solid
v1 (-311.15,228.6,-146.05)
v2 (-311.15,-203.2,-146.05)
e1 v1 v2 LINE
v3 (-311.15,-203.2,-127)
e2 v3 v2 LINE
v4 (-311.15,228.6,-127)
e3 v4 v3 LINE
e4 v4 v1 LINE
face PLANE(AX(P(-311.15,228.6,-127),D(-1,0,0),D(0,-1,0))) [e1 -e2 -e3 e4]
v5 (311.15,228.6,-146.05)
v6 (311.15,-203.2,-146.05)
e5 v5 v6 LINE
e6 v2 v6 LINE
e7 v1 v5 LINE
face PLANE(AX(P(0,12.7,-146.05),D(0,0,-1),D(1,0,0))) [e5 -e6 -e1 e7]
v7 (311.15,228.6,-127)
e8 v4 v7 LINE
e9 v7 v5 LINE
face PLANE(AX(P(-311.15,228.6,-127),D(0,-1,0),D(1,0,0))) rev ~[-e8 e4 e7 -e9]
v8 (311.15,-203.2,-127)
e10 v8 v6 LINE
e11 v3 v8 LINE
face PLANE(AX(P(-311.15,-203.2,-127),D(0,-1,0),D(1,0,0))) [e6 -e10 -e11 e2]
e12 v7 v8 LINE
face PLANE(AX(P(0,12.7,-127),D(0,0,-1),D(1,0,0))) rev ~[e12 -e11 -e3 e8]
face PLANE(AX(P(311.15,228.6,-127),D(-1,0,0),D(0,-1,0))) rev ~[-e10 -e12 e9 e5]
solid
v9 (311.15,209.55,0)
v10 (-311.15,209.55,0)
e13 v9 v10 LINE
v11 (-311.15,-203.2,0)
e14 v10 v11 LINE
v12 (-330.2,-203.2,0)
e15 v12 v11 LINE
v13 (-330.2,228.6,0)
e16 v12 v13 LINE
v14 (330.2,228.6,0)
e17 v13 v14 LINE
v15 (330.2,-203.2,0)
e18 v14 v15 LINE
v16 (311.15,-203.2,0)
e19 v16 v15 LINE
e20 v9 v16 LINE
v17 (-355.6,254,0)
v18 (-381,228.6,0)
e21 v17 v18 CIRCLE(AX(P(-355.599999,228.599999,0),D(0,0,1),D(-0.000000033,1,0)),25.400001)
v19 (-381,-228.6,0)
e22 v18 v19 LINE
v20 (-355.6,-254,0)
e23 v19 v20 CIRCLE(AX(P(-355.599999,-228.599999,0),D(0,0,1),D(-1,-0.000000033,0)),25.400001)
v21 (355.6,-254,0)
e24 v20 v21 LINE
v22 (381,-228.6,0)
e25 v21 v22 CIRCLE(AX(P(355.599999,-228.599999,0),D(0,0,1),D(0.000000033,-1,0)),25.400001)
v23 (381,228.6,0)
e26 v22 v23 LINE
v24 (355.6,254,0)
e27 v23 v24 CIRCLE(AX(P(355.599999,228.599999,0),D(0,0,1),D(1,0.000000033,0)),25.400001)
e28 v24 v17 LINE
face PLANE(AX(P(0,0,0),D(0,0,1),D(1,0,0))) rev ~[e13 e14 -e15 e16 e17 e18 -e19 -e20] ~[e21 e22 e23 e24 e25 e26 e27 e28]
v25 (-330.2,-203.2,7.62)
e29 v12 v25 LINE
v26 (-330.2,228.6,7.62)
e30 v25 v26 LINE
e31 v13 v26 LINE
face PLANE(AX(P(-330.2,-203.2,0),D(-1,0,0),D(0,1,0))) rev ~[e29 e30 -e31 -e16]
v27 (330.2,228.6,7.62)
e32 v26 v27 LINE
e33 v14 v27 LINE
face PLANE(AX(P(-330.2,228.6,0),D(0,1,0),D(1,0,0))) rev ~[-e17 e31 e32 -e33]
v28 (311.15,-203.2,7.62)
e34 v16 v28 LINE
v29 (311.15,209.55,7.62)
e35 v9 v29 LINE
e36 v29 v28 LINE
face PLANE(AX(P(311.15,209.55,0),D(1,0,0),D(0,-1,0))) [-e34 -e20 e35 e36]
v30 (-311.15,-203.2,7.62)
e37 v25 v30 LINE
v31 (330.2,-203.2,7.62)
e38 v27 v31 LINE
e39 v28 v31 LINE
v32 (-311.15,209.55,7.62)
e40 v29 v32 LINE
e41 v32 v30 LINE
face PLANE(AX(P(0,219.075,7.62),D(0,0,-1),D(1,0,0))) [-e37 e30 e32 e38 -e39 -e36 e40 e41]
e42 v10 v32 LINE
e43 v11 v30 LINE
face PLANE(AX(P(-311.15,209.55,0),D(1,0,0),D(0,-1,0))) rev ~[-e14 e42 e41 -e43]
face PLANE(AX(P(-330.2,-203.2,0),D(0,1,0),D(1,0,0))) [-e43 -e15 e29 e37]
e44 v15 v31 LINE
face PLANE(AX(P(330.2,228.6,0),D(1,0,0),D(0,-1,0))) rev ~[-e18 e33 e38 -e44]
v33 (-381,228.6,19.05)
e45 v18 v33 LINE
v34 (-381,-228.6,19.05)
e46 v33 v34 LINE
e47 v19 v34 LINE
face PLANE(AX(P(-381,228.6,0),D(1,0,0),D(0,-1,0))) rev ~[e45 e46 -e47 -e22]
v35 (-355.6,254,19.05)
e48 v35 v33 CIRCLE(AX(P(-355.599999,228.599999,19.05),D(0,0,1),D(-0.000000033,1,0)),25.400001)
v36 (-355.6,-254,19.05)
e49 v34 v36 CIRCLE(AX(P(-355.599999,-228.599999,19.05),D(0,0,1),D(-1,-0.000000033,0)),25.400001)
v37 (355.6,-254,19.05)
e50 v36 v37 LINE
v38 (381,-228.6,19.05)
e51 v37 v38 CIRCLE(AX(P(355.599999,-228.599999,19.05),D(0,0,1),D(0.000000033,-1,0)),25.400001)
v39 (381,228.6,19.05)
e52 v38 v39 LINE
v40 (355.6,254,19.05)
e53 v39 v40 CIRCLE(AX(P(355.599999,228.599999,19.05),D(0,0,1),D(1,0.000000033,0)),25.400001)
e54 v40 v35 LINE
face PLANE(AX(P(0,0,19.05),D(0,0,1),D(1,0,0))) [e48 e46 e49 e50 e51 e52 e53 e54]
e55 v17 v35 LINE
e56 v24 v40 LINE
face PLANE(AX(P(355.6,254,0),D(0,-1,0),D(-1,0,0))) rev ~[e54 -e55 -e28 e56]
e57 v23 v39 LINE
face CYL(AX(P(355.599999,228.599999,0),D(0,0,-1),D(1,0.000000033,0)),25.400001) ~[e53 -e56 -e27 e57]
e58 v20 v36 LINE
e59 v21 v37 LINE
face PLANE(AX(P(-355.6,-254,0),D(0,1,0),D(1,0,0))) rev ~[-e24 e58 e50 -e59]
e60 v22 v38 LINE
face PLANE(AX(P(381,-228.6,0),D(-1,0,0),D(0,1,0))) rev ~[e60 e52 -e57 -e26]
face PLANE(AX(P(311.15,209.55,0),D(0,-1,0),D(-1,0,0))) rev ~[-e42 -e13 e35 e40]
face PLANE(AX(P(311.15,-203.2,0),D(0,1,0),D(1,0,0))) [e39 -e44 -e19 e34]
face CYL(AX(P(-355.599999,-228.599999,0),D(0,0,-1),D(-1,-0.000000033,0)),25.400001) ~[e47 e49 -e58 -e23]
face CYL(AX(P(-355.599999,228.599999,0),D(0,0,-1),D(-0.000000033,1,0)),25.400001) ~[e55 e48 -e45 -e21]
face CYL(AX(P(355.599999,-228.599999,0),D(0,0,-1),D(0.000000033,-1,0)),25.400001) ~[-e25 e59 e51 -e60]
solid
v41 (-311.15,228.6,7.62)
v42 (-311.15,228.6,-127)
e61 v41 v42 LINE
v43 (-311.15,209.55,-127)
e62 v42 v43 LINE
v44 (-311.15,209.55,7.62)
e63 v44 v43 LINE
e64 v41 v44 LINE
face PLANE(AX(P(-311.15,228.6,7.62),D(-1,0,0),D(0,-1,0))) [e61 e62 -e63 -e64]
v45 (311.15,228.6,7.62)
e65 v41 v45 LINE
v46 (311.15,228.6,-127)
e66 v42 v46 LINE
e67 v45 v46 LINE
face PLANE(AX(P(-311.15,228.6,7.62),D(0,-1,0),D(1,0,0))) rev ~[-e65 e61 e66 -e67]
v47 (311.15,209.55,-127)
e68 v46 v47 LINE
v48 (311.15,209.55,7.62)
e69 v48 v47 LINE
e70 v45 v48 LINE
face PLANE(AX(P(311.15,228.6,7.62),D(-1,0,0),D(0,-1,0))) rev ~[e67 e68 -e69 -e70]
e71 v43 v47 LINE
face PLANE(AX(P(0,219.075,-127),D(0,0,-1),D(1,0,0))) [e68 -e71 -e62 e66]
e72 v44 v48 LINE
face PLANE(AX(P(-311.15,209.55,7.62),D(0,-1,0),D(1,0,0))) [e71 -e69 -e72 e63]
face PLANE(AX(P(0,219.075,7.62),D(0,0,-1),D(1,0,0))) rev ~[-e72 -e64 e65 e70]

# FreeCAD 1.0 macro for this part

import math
import FreeCAD as App
import Part
import Sketcher

V = App.Vector
Q = App.Units.Quantity


def add_polygon(sketch, points):
    """Adds a closed chain of lines whose ends are joined by coincident constraints."""
    first, n = sketch.GeometryCount, len(points)
    for a, b in zip(points, points[1:] + points[:1]):
        sketch.addGeometry(Part.LineSegment(App.Vector(*a, 0), App.Vector(*b, 0)), False)
    for i in range(n):
        sketch.addConstraint(Sketcher.Constraint("Coincident", first + i, 2, first + (i + 1) % n, 1))

doc = App.newDocument("Part")
params = doc.addObject("Spreadsheet::Sheet", "Params")
for row, (alias, value) in enumerate([
    ("sketch1_radius", "1 in"),
    ("sketch1_width", "28 in"),
    ("sketch1_height", "18 in"),
    ("pad1_length", "0.75 in"),
    ("sketch2_width", "26 in"),
    ("sketch2_height", "17 in"),
    ("sketch2_width2", "24.5 in"),
    ("sketch2_height2", "16.25 in"),
    ("pocket1_length", "0.3 in"),
    ("sketch3_width", "24.5 in"),
    ("sketch3_height", "0.75 in"),
    ("pad2_length", "5.3 in"),
    ("sketch4_height", "17 in"),
    ("sketch4_width", "24.5 in"),
    ("pad3_length", "0.75 in"),
], start=1):
    params.set(f"A{row}", alias)
    params.set(f"B{row}", "=" + value)
    params.setAlias(f"B{row}", alias)

body = doc.addObject("PartDesign::Body", "Body")

# Sketch on XY plane
sketch1 = doc.addObject("Sketcher::SketchObject", "Sketch")
body.addObject(sketch1)
sketch1.AttachmentSupport = (doc.XY_Plane, [""])
sketch1.MapMode = "FlatFace"
sketch1.addGeometry([
    Part.LineSegment(V(355.6, 254, 0), V(-355.6, 254, 0)),  # 0
    Part.ArcOfCircle(Part.Circle(V(-355.599999, 228.599999, 0), V(0, 0, 1), 25.400001), math.radians(90.000002), math.radians(179.999998)),  # 1
    Part.LineSegment(V(-381, 228.6, 0), V(-381, -228.6, 0)),  # 2
    Part.ArcOfCircle(Part.Circle(V(-355.599999, -228.599999, 0), V(0, 0, 1), 25.400001), math.radians(-179.999998), math.radians(-90.000002)),  # 3
    Part.LineSegment(V(-355.6, -254, 0), V(355.6, -254, 0)),  # 4
    Part.ArcOfCircle(Part.Circle(V(355.599999, -228.599999, 0), V(0, 0, 1), 25.400001), math.radians(-89.999998), math.radians(-0.000002)),  # 5
    Part.LineSegment(V(381, -228.6, 0), V(381, 228.6, 0)),  # 6
    Part.ArcOfCircle(Part.Circle(V(355.599999, 228.599999, 0), V(0, 0, 1), 25.400001), math.radians(0.000002), math.radians(89.999998)),  # 7
], False)
sketch1.addConstraint([
    Sketcher.Constraint("Tangent", 0, 2, 1, 1),
    Sketcher.Constraint("Tangent", 1, 2, 2, 1),
    Sketcher.Constraint("Tangent", 2, 2, 3, 1),
    Sketcher.Constraint("Tangent", 3, 2, 4, 1),
    Sketcher.Constraint("Tangent", 4, 2, 5, 1),
    Sketcher.Constraint("Tangent", 5, 2, 6, 1),
    Sketcher.Constraint("Tangent", 6, 2, 7, 1),
    Sketcher.Constraint("Tangent", 7, 2, 0, 1),
    Sketcher.Constraint("Horizontal", 0),
    Sketcher.Constraint("Vertical", 2),
    Sketcher.Constraint("Horizontal", 4),
    Sketcher.Constraint("Vertical", 6),
    Sketcher.Constraint("Equal", 1, 3),
    Sketcher.Constraint("Equal", 3, 5),
    Sketcher.Constraint("Equal", 5, 7),
    Sketcher.Constraint("Symmetric", 1, 3, 5, 3, -1, 1),
    Sketcher.Constraint("Radius", 1, Q("1 in")),
    Sketcher.Constraint("DistanceX", 0, 2, 0, 1, Q("28 in")),
    Sketcher.Constraint("DistanceY", 2, 2, 2, 1, Q("18 in")),
])
sketch1.setExpression("Constraints[16]", "Params.sketch1_radius")
sketch1.setExpression("Constraints[17]", "Params.sketch1_width")
sketch1.setExpression("Constraints[18]", "Params.sketch1_height")
pad1 = doc.addObject("PartDesign::Pad", "Pad")
body.addObject(pad1)
pad1.Profile = sketch1
pad1.setExpression("Length", "Params.pad1_length")

# Sketch on XY plane
sketch2 = doc.addObject("Sketcher::SketchObject", "Sketch001")
body.addObject(sketch2)
sketch2.AttachmentSupport = (doc.XY_Plane, [""])
sketch2.MapMode = "FlatFace"
add_polygon(sketch2, [(-330.2, 228.6), (330.2, 228.6), (330.2, -203.2), (311.15, -203.2), (311.15, 209.55), (-311.15, 209.55), (-311.15, -203.2), (-330.2, -203.2)])  # lines 0-7
sketch2.addConstraint([
    Sketcher.Constraint("Horizontal", 0),
    Sketcher.Constraint("Vertical", 1),
    Sketcher.Constraint("Horizontal", 2),
    Sketcher.Constraint("Vertical", 3),
    Sketcher.Constraint("Horizontal", 4),
    Sketcher.Constraint("Vertical", 5),
    Sketcher.Constraint("Horizontal", 6),
    Sketcher.Constraint("Vertical", 7),
    Sketcher.Constraint("Symmetric", 2, 2, 5, 2, -2),
    Sketcher.Constraint("Equal", 2, 6),
    Sketcher.Constraint("DistanceX", 0, 1, 0, 2, Q("26 in")),
    Sketcher.Constraint("DistanceY", 1, 2, 1, 1, Q("17 in")),
    Sketcher.Constraint("DistanceX", 4, 2, 4, 1, Q("24.5 in")),
    Sketcher.Constraint("DistanceY", -1, 1, 0, 2, Q("9 in")),
    Sketcher.Constraint("DistanceY", 3, 1, 3, 2, Q("16.25 in")),
])
sketch2.setExpression("Constraints[18]", "Params.sketch2_width")
sketch2.setExpression("Constraints[19]", "Params.sketch2_height")
sketch2.setExpression("Constraints[20]", "Params.sketch2_width2")
sketch2.setExpression("Constraints[22]", "Params.sketch2_height2")
pocket1 = doc.addObject("PartDesign::Pocket", "Pocket")
body.addObject(pocket1)
pocket1.Profile = sketch2
pocket1.setExpression("Length", "Params.pocket1_length")
pocket1.Reversed = True
body2 = doc.addObject("PartDesign::Body", "Body001")

# Sketch on XY plane
sketch3 = doc.addObject("Sketcher::SketchObject", "Sketch002")
body2.addObject(sketch3)
sketch3.AttachmentSupport = (doc.getObject("XY_Plane001"), [""])
sketch3.MapMode = "FlatFace"
sketch3.AttachmentOffset = App.Placement(V(0, 0, 0.3 * 25.4), App.Rotation())
add_polygon(sketch3, [(-311.15, 209.55), (-311.15, 228.6), (311.15, 228.6), (311.15, 209.55)])  # lines 0-3
sketch3.addConstraint([
    Sketcher.Constraint("Vertical", 0),
    Sketcher.Constraint("Horizontal", 1),
    Sketcher.Constraint("Vertical", 2),
    Sketcher.Constraint("Horizontal", 3),
    Sketcher.Constraint("DistanceX", 1, 1, 1, 2, Q("24.5 in")),
    Sketcher.Constraint("DistanceY", -1, 1, 0, 2, Q("9 in")),
    Sketcher.Constraint("DistanceY", 0, 1, 0, 2, Q("0.75 in")),
    Sketcher.Constraint("DistanceX", 0, 2, -1, 1, Q("12.25 in")),
])
sketch3.setExpression("Constraints[8]", "Params.sketch3_width")
sketch3.setExpression("Constraints[10]", "Params.sketch3_height")
pad2 = doc.addObject("PartDesign::Pad", "Pad001")
body2.addObject(pad2)
pad2.Profile = sketch3
pad2.setExpression("Length", "Params.pad2_length")
pad2.Reversed = True
body3 = doc.addObject("PartDesign::Body", "Body002")

# Sketch on XY plane
sketch4 = doc.addObject("Sketcher::SketchObject", "Sketch003")
body3.addObject(sketch4)
sketch4.AttachmentSupport = (doc.getObject("XY_Plane002"), [""])
sketch4.MapMode = "FlatFace"
sketch4.AttachmentOffset = App.Placement(V(0, 0, -5 * 25.4), App.Rotation())
add_polygon(sketch4, [(-311.15, -203.2), (-311.15, 228.6), (311.15, 228.6), (311.15, -203.2)])  # lines 0-3
sketch4.addConstraint([
    Sketcher.Constraint("Vertical", 0),
    Sketcher.Constraint("Horizontal", 1),
    Sketcher.Constraint("Vertical", 2),
    Sketcher.Constraint("Horizontal", 3),
    Sketcher.Constraint("DistanceY", 0, 1, 0, 2, Q("17 in")),
    Sketcher.Constraint("DistanceX", 1, 1, 1, 2, Q("24.5 in")),
    Sketcher.Constraint("DistanceY", -1, 1, 0, 2, Q("9 in")),
    Sketcher.Constraint("DistanceX", 0, 2, -1, 1, Q("12.25 in")),
])
sketch4.setExpression("Constraints[8]", "Params.sketch4_height")
sketch4.setExpression("Constraints[9]", "Params.sketch4_width")
pad3 = doc.addObject("PartDesign::Pad", "Pad002")
body3.addObject(pad3)
pad3.Profile = sketch4
pad3.setExpression("Length", "Params.pad3_length")
pad3.Reversed = True

doc.recompute()
